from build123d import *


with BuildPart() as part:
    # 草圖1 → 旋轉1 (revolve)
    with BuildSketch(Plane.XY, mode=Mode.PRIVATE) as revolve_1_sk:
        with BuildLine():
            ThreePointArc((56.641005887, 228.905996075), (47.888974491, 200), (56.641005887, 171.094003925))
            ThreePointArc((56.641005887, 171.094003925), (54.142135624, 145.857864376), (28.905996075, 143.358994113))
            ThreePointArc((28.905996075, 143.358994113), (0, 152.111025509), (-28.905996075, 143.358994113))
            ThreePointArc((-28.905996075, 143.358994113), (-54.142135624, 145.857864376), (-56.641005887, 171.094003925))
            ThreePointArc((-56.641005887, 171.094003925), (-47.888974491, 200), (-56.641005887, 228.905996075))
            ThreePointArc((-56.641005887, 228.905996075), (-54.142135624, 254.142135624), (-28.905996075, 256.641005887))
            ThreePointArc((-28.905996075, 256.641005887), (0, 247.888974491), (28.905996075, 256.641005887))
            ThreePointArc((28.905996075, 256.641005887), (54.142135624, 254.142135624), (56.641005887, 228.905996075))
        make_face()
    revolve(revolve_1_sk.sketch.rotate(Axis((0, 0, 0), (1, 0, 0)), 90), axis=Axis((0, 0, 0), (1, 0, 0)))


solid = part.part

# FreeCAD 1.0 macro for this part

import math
import FreeCAD as App
import Part
import Sketcher

doc = App.newDocument("Part")
params = doc.addObject("Spreadsheet::Sheet", "Params")
for row, (alias, value) in enumerate([
    ("sketch1_radius", "20 mm"),
    ("revolution_angle", "360 deg"),
], start=1):
    params.set(f"A{row}", alias)
    params.set(f"B{row}", "=" + value)
    params.setAlias(f"B{row}", alias)

body = doc.addObject("PartDesign::Body", "Body")

# Sketch on XY plane
sketch1 = body.newObject("Sketcher::SketchObject", "Sketch")
sketch1.AttachmentSupport = (doc.getObject("XY_Plane"), [""])
sketch1.MapMode = "FlatFace"
sketch1.addGeometry([
    Part.ArcOfCircle(Part.Circle(App.Vector(100, 200, 0), App.Vector(0, 0, 1), 52.111026), math.radians(146.309932), math.radians(213.690068)),  # 0
    Part.ArcOfCircle(Part.Circle(App.Vector(40, 240, 0), App.Vector(0, 0, 1), 20), math.radians(-33.690068), math.radians(123.690068)),  # 1
    Part.ArcOfCircle(Part.Circle(App.Vector(0, 300, 0), App.Vector(0, 0, 1), 52.111026), math.radians(-123.690068), math.radians(-56.309932)),  # 2
    Part.ArcOfCircle(Part.Circle(App.Vector(-40, 240, 0), App.Vector(0, 0, 1), 20), math.radians(56.309932), math.radians(213.690068)),  # 3
    Part.ArcOfCircle(Part.Circle(App.Vector(-100, 200, 0), App.Vector(0, 0, 1), 52.111026), math.radians(-33.690068), math.radians(33.690068)),  # 4
    Part.ArcOfCircle(Part.Circle(App.Vector(-40, 160, 0), App.Vector(0, 0, 1), 20), math.radians(146.309932), math.radians(303.690068)),  # 5
    Part.ArcOfCircle(Part.Circle(App.Vector(0, 100, 0), App.Vector(0, 0, 1), 52.111026), math.radians(56.309932), math.radians(123.690068)),  # 6
    Part.ArcOfCircle(Part.Circle(App.Vector(40, 160, 0), App.Vector(0, 0, 1), 20), math.radians(-123.690068), math.radians(33.690068)),  # 7
], False)
sketch1.addConstraint([
    Sketcher.Constraint("Tangent", 0, 1, 1, 1),
    Sketcher.Constraint("Tangent", 1, 2, 2, 2),
    Sketcher.Constraint("Tangent", 2, 1, 3, 1),
    Sketcher.Constraint("Tangent", 3, 2, 4, 2),
    Sketcher.Constraint("Tangent", 4, 1, 5, 1),
    Sketcher.Constraint("Tangent", 5, 2, 6, 2),
    Sketcher.Constraint("Tangent", 6, 1, 7, 1),
    Sketcher.Constraint("Tangent", 7, 2, 0, 2),
    Sketcher.Constraint("Equal", 0, 2),
    Sketcher.Constraint("Equal", 1, 3),
    Sketcher.Constraint("Equal", 2, 4),
    Sketcher.Constraint("Equal", 3, 5),
    Sketcher.Constraint("Equal", 4, 6),
    Sketcher.Constraint("Equal", 5, 7),
    Sketcher.Constraint("Symmetric", 1, 3, 3, 3, -2),
    Sketcher.Constraint("Symmetric", 5, 3, 7, 3, -2),
    Sketcher.Constraint("Vertical", 3, 3, 5, 3),
    Sketcher.Constraint("Radius", 1, 20.0),
    Sketcher.Constraint("DistanceX", -1, 1, 0, 3, 100.0),
    Sketcher.Constraint("DistanceY", -1, 1, 0, 3, 200.0),
    Sketcher.Constraint("DistanceX", -1, 1, 1, 3, 40.0),
    Sketcher.Constraint("DistanceY", -1, 1, 1, 3, 240.0),
])
sketch1.setExpression("Constraints[17]", "Params.sketch1_radius")
revolution = body.newObject("PartDesign::Revolution", "Revolution")
revolution.Profile = sketch1
revolution.ReferenceAxis = (sketch1, ["H_Axis"])
revolution.setExpression("Angle", "Params.revolution_angle")

doc.recompute()
